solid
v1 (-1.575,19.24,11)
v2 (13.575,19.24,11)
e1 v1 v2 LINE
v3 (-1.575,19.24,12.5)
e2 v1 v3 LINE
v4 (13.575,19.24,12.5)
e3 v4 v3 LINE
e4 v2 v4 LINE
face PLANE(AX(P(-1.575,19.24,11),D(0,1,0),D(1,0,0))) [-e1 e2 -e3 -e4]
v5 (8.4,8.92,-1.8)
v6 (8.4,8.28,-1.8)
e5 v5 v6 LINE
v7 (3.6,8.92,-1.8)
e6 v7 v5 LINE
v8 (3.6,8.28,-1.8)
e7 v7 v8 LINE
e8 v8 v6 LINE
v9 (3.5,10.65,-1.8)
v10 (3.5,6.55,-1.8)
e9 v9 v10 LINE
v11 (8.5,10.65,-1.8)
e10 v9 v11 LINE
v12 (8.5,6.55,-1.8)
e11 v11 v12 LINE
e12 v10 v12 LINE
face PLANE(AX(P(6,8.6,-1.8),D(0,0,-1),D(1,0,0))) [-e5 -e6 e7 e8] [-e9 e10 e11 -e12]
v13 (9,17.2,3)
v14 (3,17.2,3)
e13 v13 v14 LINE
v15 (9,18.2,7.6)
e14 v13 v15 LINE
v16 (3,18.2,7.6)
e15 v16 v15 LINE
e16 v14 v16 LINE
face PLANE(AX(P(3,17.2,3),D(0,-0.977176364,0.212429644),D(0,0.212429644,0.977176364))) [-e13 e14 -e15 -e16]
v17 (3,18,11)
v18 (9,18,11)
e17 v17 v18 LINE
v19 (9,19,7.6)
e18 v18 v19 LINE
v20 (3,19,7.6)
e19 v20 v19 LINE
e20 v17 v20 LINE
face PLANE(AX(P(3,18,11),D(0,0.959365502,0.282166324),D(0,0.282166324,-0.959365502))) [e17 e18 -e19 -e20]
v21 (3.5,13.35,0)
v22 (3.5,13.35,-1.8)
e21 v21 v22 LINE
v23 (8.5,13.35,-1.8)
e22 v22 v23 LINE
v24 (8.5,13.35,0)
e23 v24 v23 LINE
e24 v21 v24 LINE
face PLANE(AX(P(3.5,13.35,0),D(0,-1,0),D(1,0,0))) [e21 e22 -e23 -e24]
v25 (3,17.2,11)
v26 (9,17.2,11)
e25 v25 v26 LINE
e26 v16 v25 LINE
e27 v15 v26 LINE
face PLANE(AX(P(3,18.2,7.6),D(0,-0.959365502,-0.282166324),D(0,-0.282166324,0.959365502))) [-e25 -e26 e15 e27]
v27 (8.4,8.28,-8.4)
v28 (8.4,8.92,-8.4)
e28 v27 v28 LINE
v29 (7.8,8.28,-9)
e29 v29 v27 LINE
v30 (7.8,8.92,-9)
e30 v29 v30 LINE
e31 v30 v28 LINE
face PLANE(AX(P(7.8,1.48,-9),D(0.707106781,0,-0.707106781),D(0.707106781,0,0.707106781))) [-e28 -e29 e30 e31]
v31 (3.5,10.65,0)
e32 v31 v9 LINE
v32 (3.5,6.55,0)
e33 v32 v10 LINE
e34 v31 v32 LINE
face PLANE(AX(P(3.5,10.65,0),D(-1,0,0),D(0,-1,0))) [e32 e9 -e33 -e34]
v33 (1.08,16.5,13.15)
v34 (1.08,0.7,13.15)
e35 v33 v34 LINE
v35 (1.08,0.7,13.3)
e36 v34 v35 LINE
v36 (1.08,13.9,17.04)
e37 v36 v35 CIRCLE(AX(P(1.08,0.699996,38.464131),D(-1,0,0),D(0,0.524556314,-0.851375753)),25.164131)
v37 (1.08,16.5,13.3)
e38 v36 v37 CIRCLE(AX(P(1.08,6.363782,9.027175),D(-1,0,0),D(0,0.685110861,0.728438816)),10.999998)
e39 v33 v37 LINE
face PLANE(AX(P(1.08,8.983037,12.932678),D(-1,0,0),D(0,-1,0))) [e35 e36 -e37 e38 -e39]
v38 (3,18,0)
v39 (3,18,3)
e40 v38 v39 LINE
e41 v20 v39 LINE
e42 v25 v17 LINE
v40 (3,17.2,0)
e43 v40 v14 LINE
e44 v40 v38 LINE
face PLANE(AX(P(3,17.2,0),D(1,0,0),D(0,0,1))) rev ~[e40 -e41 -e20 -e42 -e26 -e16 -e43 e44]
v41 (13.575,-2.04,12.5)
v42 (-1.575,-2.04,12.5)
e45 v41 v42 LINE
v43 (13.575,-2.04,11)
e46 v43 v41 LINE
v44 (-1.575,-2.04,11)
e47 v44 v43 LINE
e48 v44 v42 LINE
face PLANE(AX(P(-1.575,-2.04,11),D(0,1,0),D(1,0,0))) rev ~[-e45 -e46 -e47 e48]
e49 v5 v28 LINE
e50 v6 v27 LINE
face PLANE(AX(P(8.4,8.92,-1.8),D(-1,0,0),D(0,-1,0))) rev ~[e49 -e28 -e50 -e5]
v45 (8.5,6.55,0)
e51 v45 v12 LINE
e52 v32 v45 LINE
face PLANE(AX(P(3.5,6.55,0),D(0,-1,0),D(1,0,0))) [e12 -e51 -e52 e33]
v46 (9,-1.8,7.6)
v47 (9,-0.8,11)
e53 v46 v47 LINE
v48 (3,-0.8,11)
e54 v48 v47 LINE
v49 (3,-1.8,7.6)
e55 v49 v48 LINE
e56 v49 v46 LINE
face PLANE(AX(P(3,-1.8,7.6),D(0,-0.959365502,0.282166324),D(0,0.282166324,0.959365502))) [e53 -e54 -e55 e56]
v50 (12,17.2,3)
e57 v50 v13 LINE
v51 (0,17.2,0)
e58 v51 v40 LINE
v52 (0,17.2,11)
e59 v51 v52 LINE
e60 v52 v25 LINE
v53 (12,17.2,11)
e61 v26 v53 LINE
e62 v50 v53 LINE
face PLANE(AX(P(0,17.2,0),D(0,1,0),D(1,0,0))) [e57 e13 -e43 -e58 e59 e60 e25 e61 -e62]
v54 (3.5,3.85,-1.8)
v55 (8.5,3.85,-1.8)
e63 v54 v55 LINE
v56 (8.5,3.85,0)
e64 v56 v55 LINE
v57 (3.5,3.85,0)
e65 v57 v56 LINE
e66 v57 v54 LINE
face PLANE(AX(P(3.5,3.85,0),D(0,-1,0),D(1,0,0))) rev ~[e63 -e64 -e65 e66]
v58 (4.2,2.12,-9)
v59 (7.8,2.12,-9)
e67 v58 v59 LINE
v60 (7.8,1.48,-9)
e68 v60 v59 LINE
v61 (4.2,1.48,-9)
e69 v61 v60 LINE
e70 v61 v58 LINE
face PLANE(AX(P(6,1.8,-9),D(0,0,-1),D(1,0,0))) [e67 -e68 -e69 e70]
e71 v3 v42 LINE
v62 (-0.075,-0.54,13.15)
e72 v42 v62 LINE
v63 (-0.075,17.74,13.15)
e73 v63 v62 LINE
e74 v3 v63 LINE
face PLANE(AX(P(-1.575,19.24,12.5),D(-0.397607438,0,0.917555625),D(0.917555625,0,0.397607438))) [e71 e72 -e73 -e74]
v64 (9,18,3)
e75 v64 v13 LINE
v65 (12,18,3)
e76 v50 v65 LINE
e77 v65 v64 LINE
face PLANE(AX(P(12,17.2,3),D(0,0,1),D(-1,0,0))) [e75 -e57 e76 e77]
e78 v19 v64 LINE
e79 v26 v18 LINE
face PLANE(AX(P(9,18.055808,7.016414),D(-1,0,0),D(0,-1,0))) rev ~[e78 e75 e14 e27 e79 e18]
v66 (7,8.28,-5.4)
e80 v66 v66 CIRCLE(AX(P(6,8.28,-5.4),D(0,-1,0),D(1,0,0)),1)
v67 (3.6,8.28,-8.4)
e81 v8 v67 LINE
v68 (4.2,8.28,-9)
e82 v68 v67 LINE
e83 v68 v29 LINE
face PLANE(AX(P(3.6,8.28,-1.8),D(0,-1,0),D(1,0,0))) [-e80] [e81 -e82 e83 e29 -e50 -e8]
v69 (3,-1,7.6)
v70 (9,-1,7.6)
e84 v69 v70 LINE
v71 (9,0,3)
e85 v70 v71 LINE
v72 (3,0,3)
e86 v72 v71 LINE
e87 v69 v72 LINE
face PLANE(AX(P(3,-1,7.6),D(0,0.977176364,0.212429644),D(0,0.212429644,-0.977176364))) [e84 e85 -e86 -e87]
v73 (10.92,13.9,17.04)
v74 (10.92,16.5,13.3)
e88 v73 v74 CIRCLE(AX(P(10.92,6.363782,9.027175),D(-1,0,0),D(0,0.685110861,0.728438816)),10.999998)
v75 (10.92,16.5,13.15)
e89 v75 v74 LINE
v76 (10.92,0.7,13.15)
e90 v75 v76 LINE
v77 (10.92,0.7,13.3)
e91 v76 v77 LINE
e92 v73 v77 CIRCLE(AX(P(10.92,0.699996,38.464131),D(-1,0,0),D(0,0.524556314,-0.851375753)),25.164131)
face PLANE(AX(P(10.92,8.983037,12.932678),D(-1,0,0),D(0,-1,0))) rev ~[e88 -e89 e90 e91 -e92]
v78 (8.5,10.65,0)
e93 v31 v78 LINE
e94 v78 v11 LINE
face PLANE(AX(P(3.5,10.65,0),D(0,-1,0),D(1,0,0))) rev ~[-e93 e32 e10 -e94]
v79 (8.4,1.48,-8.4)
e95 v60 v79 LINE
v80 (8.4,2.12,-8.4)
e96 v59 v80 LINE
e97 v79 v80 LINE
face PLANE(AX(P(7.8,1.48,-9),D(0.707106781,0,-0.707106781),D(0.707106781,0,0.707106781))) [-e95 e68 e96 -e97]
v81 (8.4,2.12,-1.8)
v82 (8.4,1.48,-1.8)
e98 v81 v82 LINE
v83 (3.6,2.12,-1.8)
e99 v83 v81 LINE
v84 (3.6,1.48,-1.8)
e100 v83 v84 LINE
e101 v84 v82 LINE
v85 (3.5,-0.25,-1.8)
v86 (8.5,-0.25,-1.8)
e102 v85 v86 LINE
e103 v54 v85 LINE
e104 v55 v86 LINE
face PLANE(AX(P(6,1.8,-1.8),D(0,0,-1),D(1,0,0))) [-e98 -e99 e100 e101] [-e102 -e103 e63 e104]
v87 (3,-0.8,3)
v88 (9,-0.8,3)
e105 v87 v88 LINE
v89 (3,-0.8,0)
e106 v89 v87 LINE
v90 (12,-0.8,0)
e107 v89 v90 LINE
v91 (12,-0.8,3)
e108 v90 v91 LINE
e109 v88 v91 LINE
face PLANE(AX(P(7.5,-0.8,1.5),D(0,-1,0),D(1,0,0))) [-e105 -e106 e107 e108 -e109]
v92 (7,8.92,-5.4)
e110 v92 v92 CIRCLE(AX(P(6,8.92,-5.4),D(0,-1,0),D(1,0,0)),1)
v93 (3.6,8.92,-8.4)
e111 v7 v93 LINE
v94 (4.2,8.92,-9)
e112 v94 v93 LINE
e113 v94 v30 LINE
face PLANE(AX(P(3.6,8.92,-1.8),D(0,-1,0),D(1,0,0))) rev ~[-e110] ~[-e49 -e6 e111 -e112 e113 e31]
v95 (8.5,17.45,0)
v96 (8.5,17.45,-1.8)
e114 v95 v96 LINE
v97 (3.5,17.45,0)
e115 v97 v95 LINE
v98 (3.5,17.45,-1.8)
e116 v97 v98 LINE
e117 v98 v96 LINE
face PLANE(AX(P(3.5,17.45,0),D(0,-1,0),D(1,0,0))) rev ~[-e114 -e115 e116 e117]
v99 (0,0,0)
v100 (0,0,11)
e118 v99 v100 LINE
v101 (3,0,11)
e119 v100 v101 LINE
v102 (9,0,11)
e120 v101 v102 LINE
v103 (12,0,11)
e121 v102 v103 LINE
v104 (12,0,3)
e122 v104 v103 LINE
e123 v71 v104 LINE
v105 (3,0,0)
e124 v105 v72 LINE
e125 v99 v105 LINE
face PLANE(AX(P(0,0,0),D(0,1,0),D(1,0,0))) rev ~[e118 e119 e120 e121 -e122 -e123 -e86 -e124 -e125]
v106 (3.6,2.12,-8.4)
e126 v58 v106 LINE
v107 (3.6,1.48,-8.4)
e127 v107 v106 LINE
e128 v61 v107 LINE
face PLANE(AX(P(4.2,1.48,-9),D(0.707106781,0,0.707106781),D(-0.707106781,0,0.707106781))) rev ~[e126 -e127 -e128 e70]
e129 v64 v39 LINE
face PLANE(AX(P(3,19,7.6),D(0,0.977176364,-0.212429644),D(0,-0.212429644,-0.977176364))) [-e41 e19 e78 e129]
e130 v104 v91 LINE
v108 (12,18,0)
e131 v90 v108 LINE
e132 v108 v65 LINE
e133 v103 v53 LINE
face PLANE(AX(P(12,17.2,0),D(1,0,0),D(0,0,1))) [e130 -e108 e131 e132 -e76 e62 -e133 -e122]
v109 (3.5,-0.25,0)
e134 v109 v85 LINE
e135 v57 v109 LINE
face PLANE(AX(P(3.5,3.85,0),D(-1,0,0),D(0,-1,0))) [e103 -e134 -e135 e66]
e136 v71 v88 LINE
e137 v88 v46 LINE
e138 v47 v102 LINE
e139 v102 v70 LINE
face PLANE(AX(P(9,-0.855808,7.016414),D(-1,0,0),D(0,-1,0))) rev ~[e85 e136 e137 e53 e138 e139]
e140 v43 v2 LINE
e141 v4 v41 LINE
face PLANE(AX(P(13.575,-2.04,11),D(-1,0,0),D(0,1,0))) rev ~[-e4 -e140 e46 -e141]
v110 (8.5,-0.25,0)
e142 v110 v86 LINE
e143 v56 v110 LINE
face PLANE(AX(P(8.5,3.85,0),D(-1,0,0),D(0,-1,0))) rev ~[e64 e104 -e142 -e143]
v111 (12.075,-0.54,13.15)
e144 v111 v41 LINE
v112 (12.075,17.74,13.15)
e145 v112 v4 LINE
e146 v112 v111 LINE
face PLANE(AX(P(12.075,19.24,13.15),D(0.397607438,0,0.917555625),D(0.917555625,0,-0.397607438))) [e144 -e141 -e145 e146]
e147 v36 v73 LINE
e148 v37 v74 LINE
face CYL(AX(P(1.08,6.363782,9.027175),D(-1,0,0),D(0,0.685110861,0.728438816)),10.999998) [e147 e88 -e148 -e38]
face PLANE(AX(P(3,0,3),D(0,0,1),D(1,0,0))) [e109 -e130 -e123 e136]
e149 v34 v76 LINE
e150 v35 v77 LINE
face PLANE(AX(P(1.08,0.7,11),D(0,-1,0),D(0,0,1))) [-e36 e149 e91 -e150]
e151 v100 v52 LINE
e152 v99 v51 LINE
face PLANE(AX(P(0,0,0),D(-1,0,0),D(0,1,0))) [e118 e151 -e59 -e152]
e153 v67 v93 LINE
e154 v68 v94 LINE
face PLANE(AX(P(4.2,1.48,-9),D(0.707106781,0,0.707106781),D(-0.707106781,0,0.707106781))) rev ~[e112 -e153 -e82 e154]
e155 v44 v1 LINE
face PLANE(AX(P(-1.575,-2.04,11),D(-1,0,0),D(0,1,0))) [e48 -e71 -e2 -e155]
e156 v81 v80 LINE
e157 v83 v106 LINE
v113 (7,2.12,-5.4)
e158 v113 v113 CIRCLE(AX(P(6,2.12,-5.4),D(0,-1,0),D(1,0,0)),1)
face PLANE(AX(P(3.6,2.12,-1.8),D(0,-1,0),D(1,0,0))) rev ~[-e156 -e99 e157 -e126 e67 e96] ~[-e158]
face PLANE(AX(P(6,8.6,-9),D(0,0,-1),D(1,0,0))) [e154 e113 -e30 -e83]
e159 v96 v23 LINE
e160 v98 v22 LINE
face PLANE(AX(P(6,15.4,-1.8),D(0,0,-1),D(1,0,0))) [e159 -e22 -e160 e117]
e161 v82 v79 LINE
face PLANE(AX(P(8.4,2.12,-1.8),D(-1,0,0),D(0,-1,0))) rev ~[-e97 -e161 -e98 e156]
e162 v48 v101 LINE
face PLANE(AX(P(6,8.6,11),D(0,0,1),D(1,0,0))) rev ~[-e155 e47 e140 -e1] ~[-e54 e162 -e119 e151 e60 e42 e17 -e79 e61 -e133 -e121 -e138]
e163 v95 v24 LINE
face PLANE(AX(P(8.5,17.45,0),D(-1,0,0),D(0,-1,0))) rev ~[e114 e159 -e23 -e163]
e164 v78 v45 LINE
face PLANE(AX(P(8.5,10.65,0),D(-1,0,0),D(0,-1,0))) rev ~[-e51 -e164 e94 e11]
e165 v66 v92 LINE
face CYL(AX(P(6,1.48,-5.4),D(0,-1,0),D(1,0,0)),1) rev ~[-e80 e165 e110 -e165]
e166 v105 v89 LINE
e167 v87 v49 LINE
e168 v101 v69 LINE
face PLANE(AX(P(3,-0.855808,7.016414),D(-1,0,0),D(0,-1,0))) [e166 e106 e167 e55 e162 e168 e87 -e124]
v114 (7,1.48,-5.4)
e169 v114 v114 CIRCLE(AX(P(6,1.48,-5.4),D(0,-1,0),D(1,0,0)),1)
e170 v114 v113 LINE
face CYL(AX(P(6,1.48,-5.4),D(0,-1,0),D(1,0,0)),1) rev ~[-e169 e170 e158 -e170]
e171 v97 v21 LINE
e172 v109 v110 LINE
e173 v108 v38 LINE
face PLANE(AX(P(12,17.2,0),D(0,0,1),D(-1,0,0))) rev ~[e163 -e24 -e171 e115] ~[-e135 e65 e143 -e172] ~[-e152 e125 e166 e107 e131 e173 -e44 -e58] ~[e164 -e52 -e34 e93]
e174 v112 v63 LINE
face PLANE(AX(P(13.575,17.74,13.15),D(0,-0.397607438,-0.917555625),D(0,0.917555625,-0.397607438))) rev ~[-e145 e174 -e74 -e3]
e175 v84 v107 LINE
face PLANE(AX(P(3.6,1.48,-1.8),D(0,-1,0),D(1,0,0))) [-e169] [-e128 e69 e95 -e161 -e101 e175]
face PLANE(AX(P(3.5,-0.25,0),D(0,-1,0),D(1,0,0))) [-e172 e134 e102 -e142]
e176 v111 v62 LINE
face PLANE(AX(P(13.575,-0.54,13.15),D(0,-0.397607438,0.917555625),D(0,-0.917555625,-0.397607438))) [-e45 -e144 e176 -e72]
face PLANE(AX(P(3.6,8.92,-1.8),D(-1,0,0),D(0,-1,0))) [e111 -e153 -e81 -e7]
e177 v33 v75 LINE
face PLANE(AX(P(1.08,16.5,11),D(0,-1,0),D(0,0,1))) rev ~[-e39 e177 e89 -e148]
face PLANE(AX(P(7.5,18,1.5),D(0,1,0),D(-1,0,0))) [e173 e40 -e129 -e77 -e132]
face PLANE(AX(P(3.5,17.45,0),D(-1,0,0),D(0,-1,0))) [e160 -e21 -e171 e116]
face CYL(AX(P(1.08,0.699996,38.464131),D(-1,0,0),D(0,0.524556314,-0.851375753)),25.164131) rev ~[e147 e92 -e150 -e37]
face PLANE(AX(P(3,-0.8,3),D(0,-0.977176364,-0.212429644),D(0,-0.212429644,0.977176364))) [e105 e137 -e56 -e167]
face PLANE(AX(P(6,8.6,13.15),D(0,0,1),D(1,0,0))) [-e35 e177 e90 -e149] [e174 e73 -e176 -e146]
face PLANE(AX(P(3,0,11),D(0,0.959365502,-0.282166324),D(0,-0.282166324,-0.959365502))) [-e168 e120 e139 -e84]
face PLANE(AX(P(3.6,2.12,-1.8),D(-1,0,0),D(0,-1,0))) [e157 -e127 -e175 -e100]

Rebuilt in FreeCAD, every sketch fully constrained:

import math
import FreeCAD as App
import Part
import Sketcher

V = App.Vector

doc = App.newDocument("Part")
params = doc.addObject("Spreadsheet::Sheet", "Params")
for row, (alias, value) in enumerate([
    ("sketch1_width", "9 mm"),
    ("sketch1_height", "3 mm"),
    ("pad1_length", "0.8 mm"),
    ("sketch2_width", "9 mm"),
    ("sketch2_height", "3 mm"),
    ("pad2_length", "0.8 mm"),
    ("sketch3_width", "1.5 mm"),
    ("sketch3_height", "0.65 mm"),
    ("pad3_length", "15.15 mm"),
    ("sketch4_width", "1.5 mm"),
    ("sketch4_height", "0.65 mm"),
    ("pad4_length", "21.28 mm"),
    ("sketch5_width", "15.15 mm"),
    ("sketch5_height", "21.28 mm"),
    ("pad5_length", "2.15 mm"),
    ("sketch6_width", "0.8 mm"),
    ("pad6_length", "6 mm"),
    ("sketch7_width", "15.8 mm"),
    ("sketch7_height", "2.3 mm"),
    ("pad7_length", "9.84 mm"),
    ("sketch8_width", "5 mm"),
    ("sketch8_height", "4.1 mm"),
    ("pad8_length", "1.8 mm"),
    ("sketch9_diameter", "2 mm"),
    ("sketch9_width", "0.6 mm"),
    ("pad9_length", "8 mm"),
    ("sketch10_width", "4.8 mm"),
    ("sketch10_height", "0.64 mm"),
    ("pad10_length", "7.2 mm"),
    ("sketch11_width", "12 mm"),
    ("sketch11_height", "17.2 mm"),
    ("pad11_length", "11 mm"),
], start=1):
    params.set(f"A{row}", alias)
    params.set(f"B{row}", "=" + value)
    params.setAlias(f"B{row}", alias)

body = doc.addObject("PartDesign::Body", "Body")

sketch1 = body.newObject("Sketcher::SketchObject", "Sketch")
sketch1.AttachmentSupport = (doc.getObject("XZ_Plane"), [""])
sketch1.MapMode = "FlatFace"
sketch1.addGeometry(Part.LineSegment(V(3, 3, 0), V(3, 0, 0)), False)
sketch1.addGeometry(Part.LineSegment(V(3, 0, 0), V(12, 0, 0)), False)
sketch1.addGeometry(Part.LineSegment(V(12, 0, 0), V(12, 3, 0)), False)
sketch1.addGeometry(Part.LineSegment(V(12, 3, 0), V(3, 3, 0)), False)
sketch1.addConstraint(Sketcher.Constraint("Coincident", 0, 2, 1, 1))
sketch1.addConstraint(Sketcher.Constraint("Coincident", 1, 2, 2, 1))
sketch1.addConstraint(Sketcher.Constraint("Coincident", 2, 2, 3, 1))
sketch1.addConstraint(Sketcher.Constraint("Coincident", 3, 2, 0, 1))
sketch1.addConstraint(Sketcher.Constraint("Vertical", 0))
sketch1.addConstraint(Sketcher.Constraint("Horizontal", 1))
sketch1.addConstraint(Sketcher.Constraint("Vertical", 2))
sketch1.addConstraint(Sketcher.Constraint("Horizontal", 3))
sketch1.addConstraint(Sketcher.Constraint("PointOnObject", 0, 2, -1))
sketch1.addConstraint(Sketcher.Constraint("DistanceX", 1, 1, 1, 2, 9.0))
sketch1.addConstraint(Sketcher.Constraint("DistanceY", 0, 2, 0, 1, 3.0))
sketch1.addConstraint(Sketcher.Constraint("DistanceX", -1, 1, 0, 2, 3.0))
sketch1.setExpression("Constraints[9]", "Params.sketch1_width")
sketch1.setExpression("Constraints[10]", "Params.sketch1_height")
pad1 = body.newObject("PartDesign::Pad", "Pad")
pad1.Profile = sketch1
pad1.setExpression("Length", "Params.pad1_length")
body2 = doc.addObject("PartDesign::Body", "Body001")

sketch2 = body2.newObject("Sketcher::SketchObject", "Sketch001")
sketch2.AttachmentSupport = (doc.getObject("XZ_Plane001"), [""])
sketch2.MapMode = "FlatFace"
sketch2.AttachmentOffset = App.Placement(V(0, 0, -17.2), App.Rotation())
sketch2.addGeometry(Part.LineSegment(V(12, 3, 0), V(12, 0, 0)), False)
sketch2.addGeometry(Part.LineSegment(V(12, 0, 0), V(3, 0, 0)), False)
sketch2.addGeometry(Part.LineSegment(V(3, 0, 0), V(3, 3, 0)), False)
sketch2.addGeometry(Part.LineSegment(V(3, 3, 0), V(12, 3, 0)), False)
sketch2.addConstraint(Sketcher.Constraint("Coincident", 0, 2, 1, 1))
sketch2.addConstraint(Sketcher.Constraint("Coincident", 1, 2, 2, 1))
sketch2.addConstraint(Sketcher.Constraint("Coincident", 2, 2, 3, 1))
sketch2.addConstraint(Sketcher.Constraint("Coincident", 3, 2, 0, 1))
sketch2.addConstraint(Sketcher.Constraint("Vertical", 0))
sketch2.addConstraint(Sketcher.Constraint("Horizontal", 1))
sketch2.addConstraint(Sketcher.Constraint("Vertical", 2))
sketch2.addConstraint(Sketcher.Constraint("Horizontal", 3))
sketch2.addConstraint(Sketcher.Constraint("PointOnObject", 0, 2, -1))
sketch2.addConstraint(Sketcher.Constraint("DistanceX", 1, 2, 1, 1, 9.0))
sketch2.addConstraint(Sketcher.Constraint("DistanceY", 0, 2, 0, 1, 3.0))
sketch2.addConstraint(Sketcher.Constraint("DistanceX", -1, 1, 0, 2, 12.0))
sketch2.setExpression("Constraints[9]", "Params.sketch2_width")
sketch2.setExpression("Constraints[10]", "Params.sketch2_height")
pad2 = body2.newObject("PartDesign::Pad", "Pad001")
pad2.Profile = sketch2
pad2.setExpression("Length", "Params.pad2_length")
pad2.Reversed = True
body3 = doc.addObject("PartDesign::Body", "Body002")
body3.AllowCompound = True

sketch3 = body3.newObject("Sketcher::SketchObject", "Sketch002")
sketch3.AttachmentSupport = (doc.getObject("YZ_Plane002"), [""])
sketch3.MapMode = "FlatFace"
sketch3.AttachmentOffset = App.Placement(V(0, 0, 13.575), App.Rotation())
sketch3.addGeometry(Part.LineSegment(V(19.2, 13.2, 0), V(17.7, 13.2, 0)), False)
sketch3.addGeometry(Part.LineSegment(V(17.7, 13.2, 0), V(19.2, 12.5, 0)), False)
sketch3.addGeometry(Part.LineSegment(V(19.2, 12.5, 0), V(19.2, 13.2, 0)), False)
sketch3.addGeometry(Part.LineSegment(V(-0.5, 13.2, 0), V(-2, 13.2, 0)), False)
sketch3.addGeometry(Part.LineSegment(V(-2, 13.2, 0), V(-2, 12.5, 0)), False)
sketch3.addGeometry(Part.LineSegment(V(-2, 12.5, 0), V(-0.5, 13.2, 0)), False)
sketch3.addConstraint(Sketcher.Constraint("Coincident", 0, 2, 1, 1))
sketch3.addConstraint(Sketcher.Constraint("Coincident", 1, 2, 2, 1))
sketch3.addConstraint(Sketcher.Constraint("Coincident", 2, 2, 0, 1))
sketch3.addConstraint(Sketcher.Constraint("Coincident", 3, 2, 4, 1))
sketch3.addConstraint(Sketcher.Constraint("Coincident", 4, 2, 5, 1))
sketch3.addConstraint(Sketcher.Constraint("Coincident", 5, 2, 3, 1))
sketch3.addConstraint(Sketcher.Constraint("Horizontal", 0))
sketch3.addConstraint(Sketcher.Constraint("Vertical", 2))
sketch3.addConstraint(Sketcher.Constraint("Horizontal", 3))
sketch3.addConstraint(Sketcher.Constraint("Vertical", 4))
sketch3.addConstraint(Sketcher.Constraint("Horizontal", 2, 2, 3, 2))
sketch3.addConstraint(Sketcher.Constraint("Horizontal", 1, 2, 4, 2))
sketch3.addConstraint(Sketcher.Constraint("Equal", 0, 3))
sketch3.addConstraint(Sketcher.Constraint("DistanceX", 0, 2, 0, 1, 1.5))
sketch3.addConstraint(Sketcher.Constraint("DistanceY", 2, 1, 2, 2, 0.65))
sketch3.addConstraint(Sketcher.Constraint("DistanceY", -1, 1, 1, 2, 12.5))
sketch3.addConstraint(Sketcher.Constraint("DistanceX", -1, 1, 0, 2, 17.74))
sketch3.addConstraint(Sketcher.Constraint("DistanceX", 3, 2, -1, 1, 2.04))
sketch3.setExpression("Constraints[13]", "Params.sketch3_width")
sketch3.setExpression("Constraints[14]", "Params.sketch3_height")
pad3 = body3.newObject("PartDesign::Pad", "Pad002")
pad3.Profile = sketch3
pad3.setExpression("Length", "Params.pad3_length")
pad3.Reversed = True
body4 = doc.addObject("PartDesign::Body", "Body003")
body4.AllowCompound = True

sketch4 = body4.newObject("Sketcher::SketchObject", "Sketch003")
sketch4.AttachmentSupport = (doc.getObject("XZ_Plane003"), [""])
sketch4.MapMode = "FlatFace"
sketch4.AttachmentOffset = App.Placement(V(0, 0, -19.24), App.Rotation())
sketch4.addGeometry(Part.LineSegment(V(13.6, 12.5, 0), V(12.1, 13.2, 0)), False)
sketch4.addGeometry(Part.LineSegment(V(12.1, 13.2, 0), V(13.6, 13.2, 0)), False)
sketch4.addGeometry(Part.LineSegment(V(13.6, 13.2, 0), V(13.6, 12.5, 0)), False)
sketch4.addGeometry(Part.LineSegment(V(-1.6, 12.5, 0), V(-1.6, 13.2, 0)), False)
sketch4.addGeometry(Part.LineSegment(V(-1.6, 13.2, 0), V(-0.1, 13.2, 0)), False)
sketch4.addGeometry(Part.LineSegment(V(-0.1, 13.2, 0), V(-1.6, 12.5, 0)), False)
sketch4.addConstraint(Sketcher.Constraint("Coincident", 0, 2, 1, 1))
sketch4.addConstraint(Sketcher.Constraint("Coincident", 1, 2, 2, 1))
sketch4.addConstraint(Sketcher.Constraint("Coincident", 2, 2, 0, 1))
sketch4.addConstraint(Sketcher.Constraint("Coincident", 3, 2, 4, 1))
sketch4.addConstraint(Sketcher.Constraint("Coincident", 4, 2, 5, 1))
sketch4.addConstraint(Sketcher.Constraint("Coincident", 5, 2, 3, 1))
sketch4.addConstraint(Sketcher.Constraint("Horizontal", 1))
sketch4.addConstraint(Sketcher.Constraint("Vertical", 2))
sketch4.addConstraint(Sketcher.Constraint("Vertical", 3))
sketch4.addConstraint(Sketcher.Constraint("Horizontal", 4))
sketch4.addConstraint(Sketcher.Constraint("Horizontal", 1, 2, 3, 2))
sketch4.addConstraint(Sketcher.Constraint("Horizontal", 2, 2, 5, 2))
sketch4.addConstraint(Sketcher.Constraint("Equal", 1, 4))
sketch4.addConstraint(Sketcher.Constraint("DistanceX", 1, 1, 1, 2, 1.5))
sketch4.addConstraint(Sketcher.Constraint("DistanceY", 2, 2, 2, 1, 0.65))
sketch4.addConstraint(Sketcher.Constraint("DistanceY", -1, 1, 2, 2, 12.5))
sketch4.addConstraint(Sketcher.Constraint("DistanceX", 3, 2, 0, 2, 13.65))
sketch4.addConstraint(Sketcher.Constraint("DistanceX", -1, 1, 0, 2, 12.075))
sketch4.setExpression("Constraints[13]", "Params.sketch4_width")
sketch4.setExpression("Constraints[14]", "Params.sketch4_height")
pad4 = body4.newObject("PartDesign::Pad", "Pad003")
pad4.Profile = sketch4
pad4.setExpression("Length", "Params.pad4_length")
doc.recompute()

boolean = body4.newObject("PartDesign::Boolean", "Boolean")
boolean.Type = "Fuse"
boolean.addObjects([body3])
body5 = doc.addObject("PartDesign::Body", "Body004")

sketch5 = body5.newObject("Sketcher::SketchObject", "Sketch004")
sketch5.AttachmentSupport = (doc.getObject("XY_Plane004"), [""])
sketch5.MapMode = "FlatFace"
sketch5.AttachmentOffset = App.Placement(V(0, 0, 11), App.Rotation())
sketch5.addGeometry(Part.LineSegment(V(-2, 19, 0), V(-2, -2, 0)), False)
sketch5.addGeometry(Part.LineSegment(V(-2, -2, 0), V(14, -2, 0)), False)
sketch5.addGeometry(Part.LineSegment(V(14, -2, 0), V(14, 19, 0)), False)
sketch5.addGeometry(Part.LineSegment(V(14, 19, 0), V(-2, 19, 0)), False)
sketch5.addConstraint(Sketcher.Constraint("Coincident", 0, 2, 1, 1))
sketch5.addConstraint(Sketcher.Constraint("Coincident", 1, 2, 2, 1))
sketch5.addConstraint(Sketcher.Constraint("Coincident", 2, 2, 3, 1))
sketch5.addConstraint(Sketcher.Constraint("Coincident", 3, 2, 0, 1))
sketch5.addConstraint(Sketcher.Constraint("Vertical", 0))
sketch5.addConstraint(Sketcher.Constraint("Horizontal", 1))
sketch5.addConstraint(Sketcher.Constraint("Vertical", 2))
sketch5.addConstraint(Sketcher.Constraint("Horizontal", 3))
sketch5.addConstraint(Sketcher.Constraint("DistanceX", 1, 1, 1, 2, 15.15))
sketch5.addConstraint(Sketcher.Constraint("DistanceY", 0, 2, 0, 1, 21.28))
sketch5.addConstraint(Sketcher.Constraint("DistanceY", 0, 2, -1, 1, 2.04))
sketch5.addConstraint(Sketcher.Constraint("DistanceX", 0, 2, -1, 1, 1.575))
sketch5.setExpression("Constraints[8]", "Params.sketch5_width")
sketch5.setExpression("Constraints[9]", "Params.sketch5_height")
pad5 = body5.newObject("PartDesign::Pad", "Pad004")
pad5.Profile = sketch5
pad5.setExpression("Length", "Params.pad5_length")
doc.recompute()

boolean2 = body5.newObject("PartDesign::Boolean", "Boolean001")
boolean2.Type = "Cut"
boolean2.addObjects([body4])
body6 = doc.addObject("PartDesign::Body", "Body005")
body6.AllowCompound = True

sketch6 = body6.newObject("Sketcher::SketchObject", "Sketch005")
sketch6.AttachmentSupport = (doc.getObject("YZ_Plane005"), [""])
sketch6.MapMode = "FlatFace"
sketch6.AttachmentOffset = App.Placement(V(0, 0, 3), App.Rotation())
sketch6.addGeometry(Part.LineSegment(V(18.2, 7.6, 0), V(17.2, 3, 0)), False)
sketch6.addGeometry(Part.LineSegment(V(17.2, 3, 0), V(18, 3, 0)), False)
sketch6.addGeometry(Part.LineSegment(V(18, 3, 0), V(19, 7.6, 0)), False)
sketch6.addGeometry(Part.LineSegment(V(19, 7.6, 0), V(18, 11, 0)), False)
sketch6.addGeometry(Part.LineSegment(V(18, 11, 0), V(17.2, 11, 0)), False)
sketch6.addGeometry(Part.LineSegment(V(17.2, 11, 0), V(18.2, 7.6, 0)), False)
sketch6.addGeometry(Part.LineSegment(V(-1.8, 7.6, 0), V(-0.8, 3, 0)), False)
sketch6.addGeometry(Part.LineSegment(V(-0.8, 3, 0), V(0, 3, 0)), False)
sketch6.addGeometry(Part.LineSegment(V(0, 3, 0), V(-1, 7.6, 0)), False)
sketch6.addGeometry(Part.LineSegment(V(-1, 7.6, 0), V(0, 11, 0)), False)
sketch6.addGeometry(Part.LineSegment(V(0, 11, 0), V(-0.8, 11, 0)), False)
sketch6.addGeometry(Part.LineSegment(V(-0.8, 11, 0), V(-1.8, 7.6, 0)), False)
sketch6.addConstraint(Sketcher.Constraint("Coincident", 0, 2, 1, 1))
sketch6.addConstraint(Sketcher.Constraint("Coincident", 1, 2, 2, 1))
sketch6.addConstraint(Sketcher.Constraint("Coincident", 2, 2, 3, 1))
sketch6.addConstraint(Sketcher.Constraint("Coincident", 3, 2, 4, 1))
sketch6.addConstraint(Sketcher.Constraint("Coincident", 4, 2, 5, 1))
sketch6.addConstraint(Sketcher.Constraint("Coincident", 5, 2, 0, 1))
sketch6.addConstraint(Sketcher.Constraint("Coincident", 6, 2, 7, 1))
sketch6.addConstraint(Sketcher.Constraint("Coincident", 7, 2, 8, 1))
sketch6.addConstraint(Sketcher.Constraint("Coincident", 8, 2, 9, 1))
sketch6.addConstraint(Sketcher.Constraint("Coincident", 9, 2, 10, 1))
sketch6.addConstraint(Sketcher.Constraint("Coincident", 10, 2, 11, 1))
sketch6.addConstraint(Sketcher.Constraint("Coincident", 11, 2, 6, 1))
sketch6.addConstraint(Sketcher.Constraint("Horizontal", 1))
sketch6.addConstraint(Sketcher.Constraint("Horizontal", 4))
sketch6.addConstraint(Sketcher.Constraint("Horizontal", 7))
sketch6.addConstraint(Sketcher.Constraint("Horizontal", 10))
sketch6.addConstraint(Sketcher.Constraint("PointOnObject", 7, 2, -2))
sketch6.addConstraint(Sketcher.Constraint("PointOnObject", 9, 2, -2))
sketch6.addConstraint(Sketcher.Constraint("Parallel", 0, 2))
sketch6.addConstraint(Sketcher.Constraint("Parallel", 3, 5))
sketch6.addConstraint(Sketcher.Constraint("Parallel", 6, 8))
sketch6.addConstraint(Sketcher.Constraint("Parallel", 9, 11))
sketch6.addConstraint(Sketcher.Constraint("Horizontal", 2, 2, 5, 2))
sketch6.addConstraint(Sketcher.Constraint("Horizontal", 1, 2, 6, 2))
sketch6.addConstraint(Sketcher.Constraint("Horizontal", 5, 2, 8, 2))
sketch6.addConstraint(Sketcher.Constraint("Horizontal", 4, 2, 9, 2))
sketch6.addConstraint(Sketcher.Constraint("Horizontal", 8, 2, 11, 2))
sketch6.addConstraint(Sketcher.Constraint("Vertical", 1, 2, 3, 2))
sketch6.addConstraint(Sketcher.Constraint("Equal", 4, 7))
sketch6.addConstraint(Sketcher.Constraint("Equal", 2, 6))
sketch6.addConstraint(Sketcher.Constraint("DistanceX", 1, 1, 1, 2, 0.8))
sketch6.addConstraint(Sketcher.Constraint("DistanceY", -1, 1, 0, 2, 3.0))
sketch6.addConstraint(Sketcher.Constraint("DistanceX", -1, 1, 1, 2, 18.0))
sketch6.addConstraint(Sketcher.Constraint("DistanceX", -1, 1, 2, 2, 19.0))
sketch6.addConstraint(Sketcher.Constraint("DistanceY", -1, 1, 3, 2, 11.0))
sketch6.addConstraint(Sketcher.Constraint("DistanceY", -1, 1, 2, 2, 7.6))
sketch6.setExpression("Constraints[30]", "Params.sketch6_width")
pad6 = body6.newObject("PartDesign::Pad", "Pad005")
pad6.Profile = sketch6
pad6.setExpression("Length", "Params.pad6_length")
body7 = doc.addObject("PartDesign::Body", "Body006")

sketch7 = body7.newObject("Sketcher::SketchObject", "Sketch006")
sketch7.AttachmentSupport = (doc.getObject("YZ_Plane006"), [""])
sketch7.MapMode = "FlatFace"
sketch7.AttachmentOffset = App.Placement(V(0, 0, 1.08), App.Rotation())
sketch7.addGeometry(Part.LineSegment(V(0.7, 11, 0), V(0.7, 13.3, 0)), False)
sketch7.addGeometry(Part.ArcOfCircle(Part.Circle(V(0.7, 38.5, 0), V(0, 0, 1), 25.2), math.radians(-90), math.radians(-58)), False)
sketch7.addGeometry(Part.ArcOfCircle(Part.Circle(V(6.4, 9, 0), V(0, 0, 1), 11), math.radians(23), math.radians(47)), False)
sketch7.addGeometry(Part.LineSegment(V(16.5, 13.3, 0), V(16.5, 11, 0)), False)
sketch7.addGeometry(Part.LineSegment(V(16.5, 11, 0), V(0.7, 11, 0)), False)
sketch7.addConstraint(Sketcher.Constraint("Coincident", 0, 2, 1, 1))
sketch7.addConstraint(Sketcher.Constraint("Coincident", 1, 2, 2, 2))
sketch7.addConstraint(Sketcher.Constraint("Coincident", 2, 1, 3, 1))
sketch7.addConstraint(Sketcher.Constraint("Coincident", 3, 2, 4, 1))
sketch7.addConstraint(Sketcher.Constraint("Coincident", 4, 2, 0, 1))
sketch7.addConstraint(Sketcher.Constraint("Vertical", 0))
sketch7.addConstraint(Sketcher.Constraint("Vertical", 3))
sketch7.addConstraint(Sketcher.Constraint("Horizontal", 4))
sketch7.addConstraint(Sketcher.Constraint("Horizontal", 0, 2, 2, 1))
sketch7.addConstraint(Sketcher.Constraint("DistanceX", 4, 2, 4, 1, 15.8))
sketch7.addConstraint(Sketcher.Constraint("DistanceY", 0, 1, 0, 2, 2.3))
sketch7.addConstraint(Sketcher.Constraint("DistanceY", -1, 1, 3, 2, 11.0))
sketch7.addConstraint(Sketcher.Constraint("DistanceX", -1, 1, 0, 2, 0.7))
sketch7.addConstraint(Sketcher.Constraint("DistanceX", -1, 1, 1, 2, 13.9))
sketch7.addConstraint(Sketcher.Constraint("DistanceY", -1, 1, 1, 2, 17.04))
sketch7.addConstraint(Sketcher.Constraint("Radius", 1, 25.164131))
sketch7.addConstraint(Sketcher.Constraint("Radius", 2, 10.999998))
sketch7.setExpression("Constraints[9]", "Params.sketch7_width")
sketch7.setExpression("Constraints[10]", "Params.sketch7_height")
pad7 = body7.newObject("PartDesign::Pad", "Pad006")
pad7.Profile = sketch7
pad7.setExpression("Length", "Params.pad7_length")
body8 = doc.addObject("PartDesign::Body", "Body007")
body8.AllowCompound = True

sketch8 = body8.newObject("Sketcher::SketchObject", "Sketch007")
sketch8.AttachmentSupport = (doc.getObject("XY_Plane007"), [""])
sketch8.MapMode = "FlatFace"
sketch8.addGeometry(Part.LineSegment(V(3.5, -0.2, 0), V(3.5, 3.9, 0)), False)
sketch8.addGeometry(Part.LineSegment(V(3.5, 3.9, 0), V(8.5, 3.9, 0)), False)
sketch8.addGeometry(Part.LineSegment(V(8.5, 3.9, 0), V(8.5, -0.2, 0)), False)
sketch8.addGeometry(Part.LineSegment(V(8.5, -0.2, 0), V(3.5, -0.2, 0)), False)
sketch8.addGeometry(Part.LineSegment(V(3.5, 6.5, 0), V(3.5, 10.7, 0)), False)
sketch8.addGeometry(Part.LineSegment(V(3.5, 10.7, 0), V(8.5, 10.7, 0)), False)
sketch8.addGeometry(Part.LineSegment(V(8.5, 10.7, 0), V(8.5, 6.5, 0)), False)
sketch8.addGeometry(Part.LineSegment(V(8.5, 6.5, 0), V(3.5, 6.5, 0)), False)
sketch8.addGeometry(Part.LineSegment(V(3.5, 13.3, 0), V(3.5, 17.4, 0)), False)
sketch8.addGeometry(Part.LineSegment(V(3.5, 17.4, 0), V(8.5, 17.4, 0)), False)
sketch8.addGeometry(Part.LineSegment(V(8.5, 17.4, 0), V(8.5, 13.3, 0)), False)
sketch8.addGeometry(Part.LineSegment(V(8.5, 13.3, 0), V(3.5, 13.3, 0)), False)
sketch8.addConstraint(Sketcher.Constraint("Coincident", 0, 2, 1, 1))
sketch8.addConstraint(Sketcher.Constraint("Coincident", 1, 2, 2, 1))
sketch8.addConstraint(Sketcher.Constraint("Coincident", 2, 2, 3, 1))
sketch8.addConstraint(Sketcher.Constraint("Coincident", 3, 2, 0, 1))
sketch8.addConstraint(Sketcher.Constraint("Coincident", 4, 2, 5, 1))
sketch8.addConstraint(Sketcher.Constraint("Coincident", 5, 2, 6, 1))
sketch8.addConstraint(Sketcher.Constraint("Coincident", 6, 2, 7, 1))
sketch8.addConstraint(Sketcher.Constraint("Coincident", 7, 2, 4, 1))
sketch8.addConstraint(Sketcher.Constraint("Coincident", 8, 2, 9, 1))
sketch8.addConstraint(Sketcher.Constraint("Coincident", 9, 2, 10, 1))
sketch8.addConstraint(Sketcher.Constraint("Coincident", 10, 2, 11, 1))
sketch8.addConstraint(Sketcher.Constraint("Coincident", 11, 2, 8, 1))
sketch8.addConstraint(Sketcher.Constraint("Vertical", 0))
sketch8.addConstraint(Sketcher.Constraint("Horizontal", 1))
sketch8.addConstraint(Sketcher.Constraint("Vertical", 2))
sketch8.addConstraint(Sketcher.Constraint("Horizontal", 3))
sketch8.addConstraint(Sketcher.Constraint("Vertical", 4))
sketch8.addConstraint(Sketcher.Constraint("Horizontal", 5))
sketch8.addConstraint(Sketcher.Constraint("Vertical", 6))
sketch8.addConstraint(Sketcher.Constraint("Horizontal", 7))
sketch8.addConstraint(Sketcher.Constraint("Vertical", 8))
sketch8.addConstraint(Sketcher.Constraint("Horizontal", 9))
sketch8.addConstraint(Sketcher.Constraint("Vertical", 10))
sketch8.addConstraint(Sketcher.Constraint("Horizontal", 11))
sketch8.addConstraint(Sketcher.Constraint("Vertical", 3, 2, 4, 2))
sketch8.addConstraint(Sketcher.Constraint("Vertical", 2, 2, 5, 2))
sketch8.addConstraint(Sketcher.Constraint("Vertical", 7, 2, 8, 2))
sketch8.addConstraint(Sketcher.Constraint("Vertical", 6, 2, 9, 2))
sketch8.addConstraint(Sketcher.Constraint("Equal", 2, 4))
sketch8.addConstraint(Sketcher.Constraint("Equal", 6, 8))
sketch8.addConstraint(Sketcher.Constraint("DistanceX", 1, 1, 1, 2, 5.0))
sketch8.addConstraint(Sketcher.Constraint("DistanceY", 0, 1, 0, 2, 4.1))
sketch8.addConstraint(Sketcher.Constraint("DistanceX", -1, 1, 0, 2, 3.5))
sketch8.addConstraint(Sketcher.Constraint("DistanceY", 0, 2, 4, 2, 6.8))
sketch8.addConstraint(Sketcher.Constraint("DistanceY", 4, 2, 8, 2, 6.8))
sketch8.addConstraint(Sketcher.Constraint("DistanceY", -1, 1, 0, 2, 3.85))
sketch8.setExpression("Constraints[30]", "Params.sketch8_width")
sketch8.setExpression("Constraints[31]", "Params.sketch8_height")
pad8 = body8.newObject("PartDesign::Pad", "Pad007")
pad8.Profile = sketch8
pad8.setExpression("Length", "Params.pad8_length")
pad8.Reversed = True
body9 = doc.addObject("PartDesign::Body", "Body008")
body9.AllowCompound = True

sketch9 = body9.newObject("Sketcher::SketchObject", "Sketch008")
sketch9.AttachmentSupport = (doc.getObject("XZ_Plane008"), [""])
sketch9.MapMode = "FlatFace"
sketch9.AttachmentOffset = App.Placement(V(0, 0, -1.48), App.Rotation())
sketch9.addGeometry(Part.Circle(V(6, -5.4, 0), V(0, 0, 1), 1), False)
sketch9.addGeometry(Part.LineSegment(V(3.6, -9, 0), V(4.2, -9, 0)), False)
sketch9.addGeometry(Part.LineSegment(V(4.2, -9, 0), V(3.6, -8.4, 0)), False)
sketch9.addGeometry(Part.LineSegment(V(3.6, -8.4, 0), V(3.6, -9, 0)), False)
sketch9.addGeometry(Part.LineSegment(V(7.8, -9, 0), V(8.4, -9, 0)), False)
sketch9.addGeometry(Part.LineSegment(V(8.4, -9, 0), V(8.4, -8.4, 0)), False)
sketch9.addGeometry(Part.LineSegment(V(8.4, -8.4, 0), V(7.8, -9, 0)), False)
sketch9.addConstraint(Sketcher.Constraint("Coincident", 1, 2, 2, 1))
sketch9.addConstraint(Sketcher.Constraint("Coincident", 2, 2, 3, 1))
sketch9.addConstraint(Sketcher.Constraint("Coincident", 3, 2, 1, 1))
sketch9.addConstraint(Sketcher.Constraint("Coincident", 4, 2, 5, 1))
sketch9.addConstraint(Sketcher.Constraint("Coincident", 5, 2, 6, 1))
sketch9.addConstraint(Sketcher.Constraint("Coincident", 6, 2, 4, 1))
sketch9.addConstraint(Sketcher.Constraint("Horizontal", 1))
sketch9.addConstraint(Sketcher.Constraint("Vertical", 3))
sketch9.addConstraint(Sketcher.Constraint("Horizontal", 4))
sketch9.addConstraint(Sketcher.Constraint("Vertical", 5))
sketch9.addConstraint(Sketcher.Constraint("Perpendicular", 2, 6))
sketch9.addConstraint(Sketcher.Constraint("Horizontal", 3, 2, 4, 2))
sketch9.addConstraint(Sketcher.Constraint("Horizontal", 2, 2, 5, 2))
sketch9.addConstraint(Sketcher.Constraint("Equal", 1, 4))
sketch9.addConstraint(Sketcher.Constraint("Diameter", 0, 2.0))
sketch9.addConstraint(Sketcher.Constraint("DistanceX", 1, 1, 1, 2, 0.6))
sketch9.addConstraint(Sketcher.Constraint("DistanceX", -1, 1, 0, 3, 6.0))
sketch9.addConstraint(Sketcher.Constraint("DistanceY", 1, 2, -1, 1, 9.0))
sketch9.addConstraint(Sketcher.Constraint("DistanceY", 2, 2, 0, 3, 3.0))
sketch9.addConstraint(Sketcher.Constraint("DistanceX", -1, 1, 1, 2, 4.2))
sketch9.addConstraint(Sketcher.Constraint("DistanceX", -1, 1, 4, 2, 8.4))
sketch9.setExpression("Constraints[14]", "Params.sketch9_diameter")
sketch9.setExpression("Constraints[15]", "Params.sketch9_width")
pad9 = body9.newObject("PartDesign::Pad", "Pad008")
pad9.Profile = sketch9
pad9.setExpression("Length", "Params.pad9_length")
pad9.Reversed = True
body10 = doc.addObject("PartDesign::Body", "Body009")
body10.AllowCompound = True

sketch10 = body10.newObject("Sketcher::SketchObject", "Sketch009")
sketch10.AttachmentSupport = (doc.getObject("XY_Plane009"), [""])
sketch10.MapMode = "FlatFace"
sketch10.AttachmentOffset = App.Placement(V(0, 0, -1.8), App.Rotation())
sketch10.addGeometry(Part.LineSegment(V(3.6, 1.5, 0), V(3.6, 2.1, 0)), False)
sketch10.addGeometry(Part.LineSegment(V(3.6, 2.1, 0), V(8.4, 2.1, 0)), False)
sketch10.addGeometry(Part.LineSegment(V(8.4, 2.1, 0), V(8.4, 1.5, 0)), False)
sketch10.addGeometry(Part.LineSegment(V(8.4, 1.5, 0), V(3.6, 1.5, 0)), False)
sketch10.addGeometry(Part.LineSegment(V(3.6, 8.3, 0), V(3.6, 8.9, 0)), False)
sketch10.addGeometry(Part.LineSegment(V(3.6, 8.9, 0), V(8.4, 8.9, 0)), False)
sketch10.addGeometry(Part.LineSegment(V(8.4, 8.9, 0), V(8.4, 8.3, 0)), False)
sketch10.addGeometry(Part.LineSegment(V(8.4, 8.3, 0), V(3.6, 8.3, 0)), False)
sketch10.addConstraint(Sketcher.Constraint("Coincident", 0, 2, 1, 1))
sketch10.addConstraint(Sketcher.Constraint("Coincident", 1, 2, 2, 1))
sketch10.addConstraint(Sketcher.Constraint("Coincident", 2, 2, 3, 1))
sketch10.addConstraint(Sketcher.Constraint("Coincident", 3, 2, 0, 1))
sketch10.addConstraint(Sketcher.Constraint("Coincident", 4, 2, 5, 1))
sketch10.addConstraint(Sketcher.Constraint("Coincident", 5, 2, 6, 1))
sketch10.addConstraint(Sketcher.Constraint("Coincident", 6, 2, 7, 1))
sketch10.addConstraint(Sketcher.Constraint("Coincident", 7, 2, 4, 1))
sketch10.addConstraint(Sketcher.Constraint("Vertical", 0))
sketch10.addConstraint(Sketcher.Constraint("Horizontal", 1))
sketch10.addConstraint(Sketcher.Constraint("Vertical", 2))
sketch10.addConstraint(Sketcher.Constraint("Horizontal", 3))
sketch10.addConstraint(Sketcher.Constraint("Vertical", 4))
sketch10.addConstraint(Sketcher.Constraint("Horizontal", 5))
sketch10.addConstraint(Sketcher.Constraint("Vertical", 6))
sketch10.addConstraint(Sketcher.Constraint("Horizontal", 7))
sketch10.addConstraint(Sketcher.Constraint("Vertical", 3, 2, 4, 2))
sketch10.addConstraint(Sketcher.Constraint("Vertical", 2, 2, 5, 2))
sketch10.addConstraint(Sketcher.Constraint("Equal", 2, 4))
sketch10.addConstraint(Sketcher.Constraint("DistanceX", 1, 1, 1, 2, 4.8))
sketch10.addConstraint(Sketcher.Constraint("DistanceY", 0, 1, 0, 2, 0.64))
sketch10.addConstraint(Sketcher.Constraint("DistanceX", -1, 1, 0, 2, 3.6))
sketch10.addConstraint(Sketcher.Constraint("DistanceY", 0, 2, 4, 2, 6.8))
sketch10.addConstraint(Sketcher.Constraint("DistanceY", -1, 1, 0, 2, 2.12))
sketch10.setExpression("Constraints[19]", "Params.sketch10_width")
sketch10.setExpression("Constraints[20]", "Params.sketch10_height")
pad10 = body10.newObject("PartDesign::Pad", "Pad009")
pad10.Profile = sketch10
pad10.setExpression("Length", "Params.pad10_length")
pad10.Reversed = True
doc.recompute()

boolean3 = body10.newObject("PartDesign::Boolean", "Boolean002")
boolean3.Type = "Cut"
boolean3.addObjects([body9])
body11 = doc.addObject("PartDesign::Body", "Body010")

sketch11 = body11.newObject("Sketcher::SketchObject", "Sketch010")
sketch11.AttachmentSupport = (doc.getObject("XY_Plane010"), [""])
sketch11.MapMode = "FlatFace"
sketch11.addGeometry(Part.LineSegment(V(0, 17, 0), V(0, 0, 0)), False)
sketch11.addGeometry(Part.LineSegment(V(0, 0, 0), V(12, 0, 0)), False)
sketch11.addGeometry(Part.LineSegment(V(12, 0, 0), V(12, 17, 0)), False)
sketch11.addGeometry(Part.LineSegment(V(12, 17, 0), V(0, 17, 0)), False)
sketch11.addConstraint(Sketcher.Constraint("Coincident", 0, 2, 1, 1))
sketch11.addConstraint(Sketcher.Constraint("Coincident", 1, 2, 2, 1))
sketch11.addConstraint(Sketcher.Constraint("Coincident", 2, 2, 3, 1))
sketch11.addConstraint(Sketcher.Constraint("Coincident", 3, 2, 0, 1))
sketch11.addConstraint(Sketcher.Constraint("Vertical", 0))
sketch11.addConstraint(Sketcher.Constraint("Horizontal", 1))
sketch11.addConstraint(Sketcher.Constraint("Vertical", 2))
sketch11.addConstraint(Sketcher.Constraint("Horizontal", 3))
sketch11.addConstraint(Sketcher.Constraint("Coincident", 0, 2, -1, 1))
sketch11.addConstraint(Sketcher.Constraint("DistanceX", 1, 1, 1, 2, 12.0))
sketch11.addConstraint(Sketcher.Constraint("DistanceY", 0, 2, 0, 1, 17.2))
sketch11.setExpression("Constraints[9]", "Params.sketch11_width")
sketch11.setExpression("Constraints[10]", "Params.sketch11_height")
pad11 = body11.newObject("PartDesign::Pad", "Pad010")
pad11.Profile = sketch11
pad11.setExpression("Length", "Params.pad11_length")
doc.recompute()

boolean4 = body11.newObject("PartDesign::Boolean", "Boolean003")
boolean4.Type = "Fuse"
boolean4.addObjects([body])
doc.recompute()

boolean5 = body11.newObject("PartDesign::Boolean", "Boolean004")
boolean5.Type = "Fuse"
boolean5.addObjects([body2])
doc.recompute()

boolean6 = body11.newObject("PartDesign::Boolean", "Boolean005")
boolean6.Type = "Fuse"
boolean6.addObjects([body5])
doc.recompute()

boolean7 = body11.newObject("PartDesign::Boolean", "Boolean006")
boolean7.Type = "Fuse"
boolean7.addObjects([body6])
doc.recompute()

boolean8 = body11.newObject("PartDesign::Boolean", "Boolean007")
boolean8.Type = "Fuse"
boolean8.addObjects([body7])
doc.recompute()

boolean9 = body11.newObject("PartDesign::Boolean", "Boolean008")
boolean9.Type = "Fuse"
boolean9.addObjects([body8])
doc.recompute()

boolean10 = body11.newObject("PartDesign::Boolean", "Boolean009")
boolean10.Type = "Fuse"
boolean10.addObjects([body10])

doc.recompute()
